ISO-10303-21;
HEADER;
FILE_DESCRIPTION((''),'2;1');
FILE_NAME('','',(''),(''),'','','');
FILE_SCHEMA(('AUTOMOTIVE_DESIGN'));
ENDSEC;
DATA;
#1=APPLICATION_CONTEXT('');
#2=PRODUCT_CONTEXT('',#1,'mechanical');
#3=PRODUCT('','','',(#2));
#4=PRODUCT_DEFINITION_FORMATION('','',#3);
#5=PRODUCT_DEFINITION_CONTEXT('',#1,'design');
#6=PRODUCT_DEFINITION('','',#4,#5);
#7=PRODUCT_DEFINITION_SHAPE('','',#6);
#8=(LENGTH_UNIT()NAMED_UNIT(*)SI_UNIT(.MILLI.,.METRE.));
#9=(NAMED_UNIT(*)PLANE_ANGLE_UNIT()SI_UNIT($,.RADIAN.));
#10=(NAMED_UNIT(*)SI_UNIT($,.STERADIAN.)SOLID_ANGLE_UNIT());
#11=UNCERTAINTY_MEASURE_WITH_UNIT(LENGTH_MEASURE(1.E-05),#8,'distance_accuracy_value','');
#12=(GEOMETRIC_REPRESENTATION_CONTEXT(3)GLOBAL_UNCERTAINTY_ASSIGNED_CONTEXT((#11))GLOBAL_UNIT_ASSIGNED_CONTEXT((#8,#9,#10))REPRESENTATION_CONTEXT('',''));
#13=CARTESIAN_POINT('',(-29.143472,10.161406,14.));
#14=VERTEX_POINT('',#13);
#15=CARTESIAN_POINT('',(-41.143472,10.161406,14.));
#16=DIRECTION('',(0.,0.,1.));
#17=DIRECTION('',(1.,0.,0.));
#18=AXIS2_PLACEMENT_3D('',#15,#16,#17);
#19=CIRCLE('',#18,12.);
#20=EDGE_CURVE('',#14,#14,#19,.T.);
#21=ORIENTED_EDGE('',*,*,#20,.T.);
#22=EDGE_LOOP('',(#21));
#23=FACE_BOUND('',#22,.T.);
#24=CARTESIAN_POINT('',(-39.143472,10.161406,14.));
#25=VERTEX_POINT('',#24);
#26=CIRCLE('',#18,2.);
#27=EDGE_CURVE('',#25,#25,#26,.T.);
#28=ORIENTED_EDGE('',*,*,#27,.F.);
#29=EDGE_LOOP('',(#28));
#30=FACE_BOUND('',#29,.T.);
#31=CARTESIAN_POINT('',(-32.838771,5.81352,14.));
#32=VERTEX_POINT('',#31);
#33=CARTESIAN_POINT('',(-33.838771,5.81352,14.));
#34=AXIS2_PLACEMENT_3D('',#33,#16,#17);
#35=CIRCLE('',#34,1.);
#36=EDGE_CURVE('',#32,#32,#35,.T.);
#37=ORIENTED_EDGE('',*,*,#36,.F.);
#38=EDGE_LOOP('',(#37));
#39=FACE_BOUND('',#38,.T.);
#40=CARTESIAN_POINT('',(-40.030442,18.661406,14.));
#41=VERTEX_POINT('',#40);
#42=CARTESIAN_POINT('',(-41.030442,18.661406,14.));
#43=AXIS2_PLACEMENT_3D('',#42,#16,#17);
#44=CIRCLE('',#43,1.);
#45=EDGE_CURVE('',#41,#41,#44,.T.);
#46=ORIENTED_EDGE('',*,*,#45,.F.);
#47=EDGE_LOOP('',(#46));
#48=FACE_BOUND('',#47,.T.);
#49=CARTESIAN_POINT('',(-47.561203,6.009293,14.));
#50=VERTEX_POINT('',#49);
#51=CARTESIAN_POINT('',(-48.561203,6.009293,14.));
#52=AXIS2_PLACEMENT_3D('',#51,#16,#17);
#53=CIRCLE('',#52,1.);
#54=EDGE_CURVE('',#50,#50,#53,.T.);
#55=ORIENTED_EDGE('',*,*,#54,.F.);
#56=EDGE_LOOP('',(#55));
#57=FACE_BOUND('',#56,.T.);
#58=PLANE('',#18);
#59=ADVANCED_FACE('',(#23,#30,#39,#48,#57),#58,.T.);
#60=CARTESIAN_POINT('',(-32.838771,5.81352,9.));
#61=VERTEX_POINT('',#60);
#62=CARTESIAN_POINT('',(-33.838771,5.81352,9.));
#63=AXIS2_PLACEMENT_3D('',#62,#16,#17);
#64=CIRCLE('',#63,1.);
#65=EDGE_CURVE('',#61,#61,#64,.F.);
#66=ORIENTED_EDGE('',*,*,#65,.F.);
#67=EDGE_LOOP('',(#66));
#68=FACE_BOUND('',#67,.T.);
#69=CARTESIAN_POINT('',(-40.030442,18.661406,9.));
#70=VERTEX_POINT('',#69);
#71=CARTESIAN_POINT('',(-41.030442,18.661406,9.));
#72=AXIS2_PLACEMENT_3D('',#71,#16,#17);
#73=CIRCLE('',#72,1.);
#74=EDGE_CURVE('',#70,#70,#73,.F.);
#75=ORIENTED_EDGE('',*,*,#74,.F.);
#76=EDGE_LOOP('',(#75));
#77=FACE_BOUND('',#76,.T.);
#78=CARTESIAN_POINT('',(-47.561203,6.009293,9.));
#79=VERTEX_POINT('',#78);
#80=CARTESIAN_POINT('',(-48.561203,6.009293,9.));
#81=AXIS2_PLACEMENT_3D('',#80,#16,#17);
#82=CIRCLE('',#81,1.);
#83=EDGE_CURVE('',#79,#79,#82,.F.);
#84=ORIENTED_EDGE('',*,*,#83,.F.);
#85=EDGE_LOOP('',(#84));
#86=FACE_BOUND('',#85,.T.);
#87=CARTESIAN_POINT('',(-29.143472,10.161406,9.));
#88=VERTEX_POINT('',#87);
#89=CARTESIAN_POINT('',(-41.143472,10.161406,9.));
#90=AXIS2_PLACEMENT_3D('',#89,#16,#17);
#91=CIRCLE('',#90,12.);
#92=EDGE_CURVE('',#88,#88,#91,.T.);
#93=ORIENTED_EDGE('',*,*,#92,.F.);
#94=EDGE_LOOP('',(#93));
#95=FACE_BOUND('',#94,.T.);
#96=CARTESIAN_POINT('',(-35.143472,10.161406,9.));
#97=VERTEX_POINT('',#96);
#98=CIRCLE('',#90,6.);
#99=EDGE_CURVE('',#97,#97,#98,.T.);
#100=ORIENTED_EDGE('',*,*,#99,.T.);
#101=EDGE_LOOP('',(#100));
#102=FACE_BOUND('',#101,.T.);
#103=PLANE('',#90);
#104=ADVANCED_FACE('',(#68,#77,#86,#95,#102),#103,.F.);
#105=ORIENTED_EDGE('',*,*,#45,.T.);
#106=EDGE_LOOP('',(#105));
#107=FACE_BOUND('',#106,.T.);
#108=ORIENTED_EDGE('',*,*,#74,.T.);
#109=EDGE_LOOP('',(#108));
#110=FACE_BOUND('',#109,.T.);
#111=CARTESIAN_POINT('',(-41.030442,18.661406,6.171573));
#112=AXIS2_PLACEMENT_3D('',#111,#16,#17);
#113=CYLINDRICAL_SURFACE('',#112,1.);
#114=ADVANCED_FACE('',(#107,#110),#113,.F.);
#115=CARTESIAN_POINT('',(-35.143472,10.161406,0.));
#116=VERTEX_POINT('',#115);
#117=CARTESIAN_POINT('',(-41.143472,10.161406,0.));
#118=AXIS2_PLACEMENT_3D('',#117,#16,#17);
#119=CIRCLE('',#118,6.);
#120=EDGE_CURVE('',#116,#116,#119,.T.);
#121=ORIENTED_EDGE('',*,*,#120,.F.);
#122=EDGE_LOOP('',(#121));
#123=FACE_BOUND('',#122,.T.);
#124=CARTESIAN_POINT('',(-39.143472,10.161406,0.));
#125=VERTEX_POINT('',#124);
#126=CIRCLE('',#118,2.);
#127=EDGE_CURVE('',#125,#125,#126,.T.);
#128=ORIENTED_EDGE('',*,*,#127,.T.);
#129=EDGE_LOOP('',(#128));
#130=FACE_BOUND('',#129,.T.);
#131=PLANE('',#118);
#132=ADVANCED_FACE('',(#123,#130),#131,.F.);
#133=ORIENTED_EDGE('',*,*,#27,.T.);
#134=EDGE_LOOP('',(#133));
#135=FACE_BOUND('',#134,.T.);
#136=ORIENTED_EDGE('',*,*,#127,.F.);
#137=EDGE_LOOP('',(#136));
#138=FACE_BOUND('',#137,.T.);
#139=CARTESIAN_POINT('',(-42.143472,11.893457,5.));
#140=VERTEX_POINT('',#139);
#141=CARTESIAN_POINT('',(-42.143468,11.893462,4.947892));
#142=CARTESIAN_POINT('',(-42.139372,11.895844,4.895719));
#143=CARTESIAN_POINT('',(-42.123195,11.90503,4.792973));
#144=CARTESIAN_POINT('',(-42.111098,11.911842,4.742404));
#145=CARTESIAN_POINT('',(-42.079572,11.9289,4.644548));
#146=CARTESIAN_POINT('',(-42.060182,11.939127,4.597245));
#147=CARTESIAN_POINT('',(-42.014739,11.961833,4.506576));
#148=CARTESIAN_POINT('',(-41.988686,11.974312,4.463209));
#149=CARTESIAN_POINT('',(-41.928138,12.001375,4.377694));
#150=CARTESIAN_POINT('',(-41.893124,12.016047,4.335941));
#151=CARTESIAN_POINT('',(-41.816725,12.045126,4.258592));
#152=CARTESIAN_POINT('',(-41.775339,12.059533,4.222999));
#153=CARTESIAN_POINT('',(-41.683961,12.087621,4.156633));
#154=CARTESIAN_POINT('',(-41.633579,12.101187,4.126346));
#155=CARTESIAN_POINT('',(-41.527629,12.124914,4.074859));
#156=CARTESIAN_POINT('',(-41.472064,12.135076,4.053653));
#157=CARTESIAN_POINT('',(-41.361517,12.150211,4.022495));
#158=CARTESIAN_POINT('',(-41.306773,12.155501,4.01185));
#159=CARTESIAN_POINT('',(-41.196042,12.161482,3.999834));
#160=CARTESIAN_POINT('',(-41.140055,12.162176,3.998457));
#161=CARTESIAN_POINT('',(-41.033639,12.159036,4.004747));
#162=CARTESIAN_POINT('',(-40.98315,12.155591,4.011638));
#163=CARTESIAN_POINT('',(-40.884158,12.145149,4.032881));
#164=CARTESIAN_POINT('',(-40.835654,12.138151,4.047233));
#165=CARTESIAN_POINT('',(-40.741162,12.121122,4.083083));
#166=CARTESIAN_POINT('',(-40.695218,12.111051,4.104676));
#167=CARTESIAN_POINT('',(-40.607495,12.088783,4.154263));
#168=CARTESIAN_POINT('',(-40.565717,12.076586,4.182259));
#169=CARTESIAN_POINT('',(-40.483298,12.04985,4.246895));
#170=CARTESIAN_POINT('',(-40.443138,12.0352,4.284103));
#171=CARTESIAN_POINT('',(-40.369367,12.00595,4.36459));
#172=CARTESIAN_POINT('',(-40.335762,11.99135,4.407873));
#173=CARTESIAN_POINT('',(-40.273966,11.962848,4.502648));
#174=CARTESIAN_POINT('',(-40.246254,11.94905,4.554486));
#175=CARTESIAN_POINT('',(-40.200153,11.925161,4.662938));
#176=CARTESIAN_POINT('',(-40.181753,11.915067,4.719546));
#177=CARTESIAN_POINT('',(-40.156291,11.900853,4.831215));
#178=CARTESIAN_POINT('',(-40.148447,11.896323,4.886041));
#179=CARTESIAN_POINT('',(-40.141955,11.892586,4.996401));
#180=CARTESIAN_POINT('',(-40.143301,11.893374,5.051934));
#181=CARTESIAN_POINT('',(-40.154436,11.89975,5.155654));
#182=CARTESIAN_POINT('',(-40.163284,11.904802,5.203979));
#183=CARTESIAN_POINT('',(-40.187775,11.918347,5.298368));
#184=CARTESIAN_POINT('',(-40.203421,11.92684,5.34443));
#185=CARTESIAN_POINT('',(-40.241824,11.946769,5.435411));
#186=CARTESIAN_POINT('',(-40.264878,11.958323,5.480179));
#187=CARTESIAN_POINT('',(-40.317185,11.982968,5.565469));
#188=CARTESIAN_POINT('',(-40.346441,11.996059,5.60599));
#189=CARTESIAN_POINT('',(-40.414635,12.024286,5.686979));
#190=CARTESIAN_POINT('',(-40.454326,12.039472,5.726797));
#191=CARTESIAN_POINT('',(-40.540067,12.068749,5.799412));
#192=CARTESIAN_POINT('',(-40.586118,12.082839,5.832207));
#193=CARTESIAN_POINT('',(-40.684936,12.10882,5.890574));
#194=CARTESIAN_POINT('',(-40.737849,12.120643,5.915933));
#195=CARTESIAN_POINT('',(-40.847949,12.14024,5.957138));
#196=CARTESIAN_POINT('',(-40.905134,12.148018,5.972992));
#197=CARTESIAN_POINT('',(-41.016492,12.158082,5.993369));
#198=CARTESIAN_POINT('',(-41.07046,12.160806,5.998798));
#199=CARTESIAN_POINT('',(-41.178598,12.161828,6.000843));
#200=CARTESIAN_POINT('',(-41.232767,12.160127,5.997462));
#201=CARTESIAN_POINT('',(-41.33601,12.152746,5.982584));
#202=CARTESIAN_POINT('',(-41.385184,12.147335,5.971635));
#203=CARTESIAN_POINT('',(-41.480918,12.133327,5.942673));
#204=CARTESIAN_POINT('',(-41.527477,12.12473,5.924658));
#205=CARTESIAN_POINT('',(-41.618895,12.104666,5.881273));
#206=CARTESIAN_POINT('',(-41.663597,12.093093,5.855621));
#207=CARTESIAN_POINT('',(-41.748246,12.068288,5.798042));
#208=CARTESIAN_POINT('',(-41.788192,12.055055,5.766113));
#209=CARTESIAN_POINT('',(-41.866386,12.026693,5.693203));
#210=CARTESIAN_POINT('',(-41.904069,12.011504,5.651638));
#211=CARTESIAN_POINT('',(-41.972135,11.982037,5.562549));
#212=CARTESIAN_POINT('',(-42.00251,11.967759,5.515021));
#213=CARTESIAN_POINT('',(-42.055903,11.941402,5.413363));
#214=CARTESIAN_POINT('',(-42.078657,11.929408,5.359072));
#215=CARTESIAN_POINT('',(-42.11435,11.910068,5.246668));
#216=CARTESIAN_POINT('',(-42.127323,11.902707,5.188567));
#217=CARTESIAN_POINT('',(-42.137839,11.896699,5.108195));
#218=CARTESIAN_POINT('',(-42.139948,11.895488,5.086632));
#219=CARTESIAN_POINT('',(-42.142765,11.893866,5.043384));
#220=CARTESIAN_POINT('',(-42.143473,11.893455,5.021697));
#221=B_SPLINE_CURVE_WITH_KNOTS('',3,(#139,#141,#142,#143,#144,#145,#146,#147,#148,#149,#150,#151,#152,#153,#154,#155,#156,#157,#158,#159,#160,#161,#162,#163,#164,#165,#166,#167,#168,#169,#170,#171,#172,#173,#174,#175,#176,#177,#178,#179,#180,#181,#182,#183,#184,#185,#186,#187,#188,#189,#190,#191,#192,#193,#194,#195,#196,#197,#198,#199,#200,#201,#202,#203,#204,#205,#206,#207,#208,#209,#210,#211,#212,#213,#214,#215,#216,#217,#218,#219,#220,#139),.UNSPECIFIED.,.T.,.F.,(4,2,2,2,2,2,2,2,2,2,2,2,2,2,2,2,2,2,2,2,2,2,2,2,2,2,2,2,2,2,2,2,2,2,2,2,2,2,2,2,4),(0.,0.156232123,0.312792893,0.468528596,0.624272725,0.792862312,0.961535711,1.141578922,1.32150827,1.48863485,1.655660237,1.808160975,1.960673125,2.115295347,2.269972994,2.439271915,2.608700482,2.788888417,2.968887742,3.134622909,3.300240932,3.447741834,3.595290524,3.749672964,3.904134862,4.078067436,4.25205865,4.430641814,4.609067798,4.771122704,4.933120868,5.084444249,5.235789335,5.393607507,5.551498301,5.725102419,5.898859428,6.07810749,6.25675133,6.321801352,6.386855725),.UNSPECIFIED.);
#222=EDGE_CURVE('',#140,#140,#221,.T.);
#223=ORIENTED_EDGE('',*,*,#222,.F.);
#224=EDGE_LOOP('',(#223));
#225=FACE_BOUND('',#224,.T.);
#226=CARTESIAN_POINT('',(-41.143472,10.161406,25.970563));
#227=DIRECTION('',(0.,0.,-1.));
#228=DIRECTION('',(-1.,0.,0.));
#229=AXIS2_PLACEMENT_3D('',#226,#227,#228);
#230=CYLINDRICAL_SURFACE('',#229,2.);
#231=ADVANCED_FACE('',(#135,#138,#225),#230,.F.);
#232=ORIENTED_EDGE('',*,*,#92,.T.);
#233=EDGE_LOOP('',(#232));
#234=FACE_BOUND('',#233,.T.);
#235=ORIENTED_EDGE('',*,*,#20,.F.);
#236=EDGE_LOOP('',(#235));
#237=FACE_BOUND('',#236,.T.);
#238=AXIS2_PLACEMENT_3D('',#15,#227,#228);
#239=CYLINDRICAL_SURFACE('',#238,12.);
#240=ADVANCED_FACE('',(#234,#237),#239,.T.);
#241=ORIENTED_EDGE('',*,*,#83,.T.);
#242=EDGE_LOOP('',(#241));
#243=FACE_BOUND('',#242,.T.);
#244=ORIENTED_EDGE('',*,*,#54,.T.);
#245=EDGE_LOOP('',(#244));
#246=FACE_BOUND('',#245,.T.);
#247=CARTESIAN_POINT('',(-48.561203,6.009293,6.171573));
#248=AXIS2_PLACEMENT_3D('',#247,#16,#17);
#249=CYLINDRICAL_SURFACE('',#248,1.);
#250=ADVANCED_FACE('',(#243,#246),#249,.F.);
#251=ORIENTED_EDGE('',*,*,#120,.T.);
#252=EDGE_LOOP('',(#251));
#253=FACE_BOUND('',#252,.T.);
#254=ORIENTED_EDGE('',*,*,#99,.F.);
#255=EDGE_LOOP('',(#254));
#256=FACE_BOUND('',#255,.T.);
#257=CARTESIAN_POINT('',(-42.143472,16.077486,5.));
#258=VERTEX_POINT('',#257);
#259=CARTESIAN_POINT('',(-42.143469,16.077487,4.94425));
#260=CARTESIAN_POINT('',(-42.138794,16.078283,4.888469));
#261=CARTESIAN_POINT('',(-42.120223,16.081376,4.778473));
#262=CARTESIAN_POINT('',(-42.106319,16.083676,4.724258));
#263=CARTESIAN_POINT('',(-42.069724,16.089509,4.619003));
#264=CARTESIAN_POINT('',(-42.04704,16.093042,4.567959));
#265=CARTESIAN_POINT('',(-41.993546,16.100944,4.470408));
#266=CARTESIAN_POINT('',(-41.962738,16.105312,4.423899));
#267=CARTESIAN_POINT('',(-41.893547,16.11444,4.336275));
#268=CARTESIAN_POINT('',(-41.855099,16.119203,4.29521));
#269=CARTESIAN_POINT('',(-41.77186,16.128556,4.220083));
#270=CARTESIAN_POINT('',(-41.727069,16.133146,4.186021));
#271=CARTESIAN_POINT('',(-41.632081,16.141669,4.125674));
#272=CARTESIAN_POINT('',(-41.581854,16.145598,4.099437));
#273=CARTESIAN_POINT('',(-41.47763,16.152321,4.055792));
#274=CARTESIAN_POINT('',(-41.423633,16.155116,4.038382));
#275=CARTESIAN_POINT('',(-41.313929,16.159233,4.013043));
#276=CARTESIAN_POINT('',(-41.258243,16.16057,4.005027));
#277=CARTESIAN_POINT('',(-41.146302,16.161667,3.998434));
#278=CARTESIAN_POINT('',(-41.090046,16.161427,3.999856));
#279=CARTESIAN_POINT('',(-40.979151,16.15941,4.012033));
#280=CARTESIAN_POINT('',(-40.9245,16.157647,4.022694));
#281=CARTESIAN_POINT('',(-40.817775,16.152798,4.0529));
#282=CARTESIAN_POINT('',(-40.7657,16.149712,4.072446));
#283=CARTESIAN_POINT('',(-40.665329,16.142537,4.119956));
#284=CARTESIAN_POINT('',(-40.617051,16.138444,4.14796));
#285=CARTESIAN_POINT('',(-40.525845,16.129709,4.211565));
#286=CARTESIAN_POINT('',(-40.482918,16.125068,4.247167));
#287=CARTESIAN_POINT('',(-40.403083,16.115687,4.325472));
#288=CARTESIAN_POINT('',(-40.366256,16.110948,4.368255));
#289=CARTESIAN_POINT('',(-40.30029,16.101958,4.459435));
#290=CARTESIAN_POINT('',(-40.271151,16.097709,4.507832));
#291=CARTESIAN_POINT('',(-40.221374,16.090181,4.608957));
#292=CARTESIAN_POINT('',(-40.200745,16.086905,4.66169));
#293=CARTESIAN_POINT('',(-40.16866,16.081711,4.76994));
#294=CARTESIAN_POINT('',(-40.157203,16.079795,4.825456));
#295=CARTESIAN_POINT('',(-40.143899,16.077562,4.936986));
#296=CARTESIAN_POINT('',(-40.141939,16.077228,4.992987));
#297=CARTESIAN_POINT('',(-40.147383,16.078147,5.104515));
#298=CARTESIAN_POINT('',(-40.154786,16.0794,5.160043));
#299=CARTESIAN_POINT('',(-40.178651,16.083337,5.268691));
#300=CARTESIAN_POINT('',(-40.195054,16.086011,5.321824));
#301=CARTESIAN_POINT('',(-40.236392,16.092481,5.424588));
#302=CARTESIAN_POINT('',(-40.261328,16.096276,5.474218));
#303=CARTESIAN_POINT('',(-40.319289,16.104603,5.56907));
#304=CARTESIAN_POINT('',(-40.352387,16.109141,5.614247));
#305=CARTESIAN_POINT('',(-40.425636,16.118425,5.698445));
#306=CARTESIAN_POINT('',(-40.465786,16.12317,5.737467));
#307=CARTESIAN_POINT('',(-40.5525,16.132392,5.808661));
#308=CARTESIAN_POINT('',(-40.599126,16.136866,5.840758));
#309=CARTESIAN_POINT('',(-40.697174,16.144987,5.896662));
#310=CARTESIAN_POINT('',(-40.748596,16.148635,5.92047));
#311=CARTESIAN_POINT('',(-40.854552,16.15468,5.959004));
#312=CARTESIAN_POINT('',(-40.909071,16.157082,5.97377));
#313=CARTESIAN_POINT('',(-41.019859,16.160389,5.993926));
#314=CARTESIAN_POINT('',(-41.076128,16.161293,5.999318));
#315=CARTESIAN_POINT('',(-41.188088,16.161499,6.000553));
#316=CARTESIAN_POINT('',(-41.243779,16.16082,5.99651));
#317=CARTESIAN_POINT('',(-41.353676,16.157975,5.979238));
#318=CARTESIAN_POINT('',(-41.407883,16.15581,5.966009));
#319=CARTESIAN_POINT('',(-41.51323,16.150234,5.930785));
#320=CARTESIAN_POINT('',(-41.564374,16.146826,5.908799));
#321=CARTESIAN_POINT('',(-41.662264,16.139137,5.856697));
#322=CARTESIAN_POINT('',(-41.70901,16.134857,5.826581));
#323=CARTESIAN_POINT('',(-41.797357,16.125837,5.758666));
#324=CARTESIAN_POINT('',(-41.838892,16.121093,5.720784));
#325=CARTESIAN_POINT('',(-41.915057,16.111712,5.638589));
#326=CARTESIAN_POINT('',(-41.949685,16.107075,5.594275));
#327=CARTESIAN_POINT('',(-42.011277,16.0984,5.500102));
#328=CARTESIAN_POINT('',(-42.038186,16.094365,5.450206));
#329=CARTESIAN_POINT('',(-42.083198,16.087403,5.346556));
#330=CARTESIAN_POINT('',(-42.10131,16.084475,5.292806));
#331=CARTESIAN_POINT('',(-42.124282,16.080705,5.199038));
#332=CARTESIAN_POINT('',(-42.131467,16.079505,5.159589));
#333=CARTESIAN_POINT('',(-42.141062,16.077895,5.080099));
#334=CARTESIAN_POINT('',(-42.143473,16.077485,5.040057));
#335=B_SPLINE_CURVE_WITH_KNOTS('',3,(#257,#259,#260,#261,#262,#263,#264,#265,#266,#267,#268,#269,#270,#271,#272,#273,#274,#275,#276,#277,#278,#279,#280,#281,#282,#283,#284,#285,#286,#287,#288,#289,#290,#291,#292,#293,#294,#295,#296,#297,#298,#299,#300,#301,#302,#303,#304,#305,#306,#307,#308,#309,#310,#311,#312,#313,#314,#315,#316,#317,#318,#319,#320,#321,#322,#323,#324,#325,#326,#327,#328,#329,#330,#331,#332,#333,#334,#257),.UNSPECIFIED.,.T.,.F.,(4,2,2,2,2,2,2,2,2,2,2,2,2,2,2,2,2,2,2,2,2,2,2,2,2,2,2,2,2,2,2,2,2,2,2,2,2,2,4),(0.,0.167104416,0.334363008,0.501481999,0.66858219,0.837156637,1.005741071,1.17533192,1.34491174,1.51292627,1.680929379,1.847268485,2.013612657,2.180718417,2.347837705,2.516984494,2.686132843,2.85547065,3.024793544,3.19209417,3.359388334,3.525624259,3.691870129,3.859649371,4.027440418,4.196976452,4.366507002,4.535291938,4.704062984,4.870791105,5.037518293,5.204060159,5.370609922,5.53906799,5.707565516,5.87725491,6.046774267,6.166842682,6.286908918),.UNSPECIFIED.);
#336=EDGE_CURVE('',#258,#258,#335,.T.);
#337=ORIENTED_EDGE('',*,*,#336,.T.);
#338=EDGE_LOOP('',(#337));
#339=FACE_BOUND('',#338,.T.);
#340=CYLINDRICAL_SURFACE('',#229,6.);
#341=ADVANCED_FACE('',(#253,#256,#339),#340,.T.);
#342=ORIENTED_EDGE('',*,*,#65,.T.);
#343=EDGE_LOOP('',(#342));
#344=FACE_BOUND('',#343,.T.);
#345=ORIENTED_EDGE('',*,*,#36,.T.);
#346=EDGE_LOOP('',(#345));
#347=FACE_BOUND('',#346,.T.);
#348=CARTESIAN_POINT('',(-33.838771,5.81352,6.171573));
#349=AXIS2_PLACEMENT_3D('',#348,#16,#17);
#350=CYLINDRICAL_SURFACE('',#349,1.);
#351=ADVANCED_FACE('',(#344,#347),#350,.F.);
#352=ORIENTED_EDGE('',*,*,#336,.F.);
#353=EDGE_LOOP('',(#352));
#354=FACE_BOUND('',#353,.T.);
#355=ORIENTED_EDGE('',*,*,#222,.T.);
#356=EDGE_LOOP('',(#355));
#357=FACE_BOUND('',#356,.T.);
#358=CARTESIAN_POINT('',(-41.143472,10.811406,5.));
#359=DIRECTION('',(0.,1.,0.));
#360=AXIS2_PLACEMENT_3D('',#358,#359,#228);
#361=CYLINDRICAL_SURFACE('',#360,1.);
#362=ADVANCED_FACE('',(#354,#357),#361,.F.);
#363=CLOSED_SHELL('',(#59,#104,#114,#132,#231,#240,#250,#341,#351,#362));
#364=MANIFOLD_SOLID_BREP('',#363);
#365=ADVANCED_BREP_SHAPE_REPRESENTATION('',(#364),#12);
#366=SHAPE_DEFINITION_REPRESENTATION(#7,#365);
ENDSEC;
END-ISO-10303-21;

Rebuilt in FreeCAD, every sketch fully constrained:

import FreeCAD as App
import Part
import Sketcher
from FreeCAD import Vector
Q = App.Units.Quantity

doc = App.newDocument("Part")
body = doc.addObject("PartDesign::Body", "Body")

sketch1 = body.newObject("Sketcher::SketchObject", "Sketch")
sketch1.AttachmentSupport = (doc.getObject("XY_Plane"), [""])
sketch1.MapMode = "FlatFace"
sketch1.addGeometry([
    Part.Circle(Vector(-41.1, 10.2, 0), Vector(0, 0, 1), 6),
    Part.Circle(Vector(-41.1, 10.2, 0), Vector(0, 0, 1), 2),
], False)
sketch1.addConstraint([
    Sketcher.Constraint("Coincident", 1, 3, 0, 3),
    Sketcher.Constraint("Diameter", 0, Q("12 mm")),
    Sketcher.Constraint("Diameter", 1, Q("4 mm")),
    Sketcher.Constraint("DistanceX", 0, 3, -1, 1, Q("41.143472 mm")),
    Sketcher.Constraint("DistanceY", -1, 1, 0, 3, Q("10.161406 mm")),
])
pad1 = body.newObject("PartDesign::Pad", "Pad")
pad1.Profile = sketch1
pad1.Length = 9

sketch2 = body.newObject("Sketcher::SketchObject", "Sketch001")
sketch2.AttachmentSupport = (doc.getObject("XY_Plane"), [""])
sketch2.MapMode = "FlatFace"
sketch2.AttachmentOffset = App.Placement(Vector(0, 0, 9), App.Rotation())
sketch2.addGeometry([
    Part.Circle(Vector(-41.1, 10.2, 0), Vector(0, 0, 1), 12),
    Part.Circle(Vector(-41.1, 10.2, 0), Vector(0, 0, 1), 2),
], False)
sketch2.addConstraint([
    Sketcher.Constraint("Coincident", 1, 3, 0, 3),
    Sketcher.Constraint("Diameter", 0, Q("24 mm")),
    Sketcher.Constraint("Diameter", 1, Q("4 mm")),
    Sketcher.Constraint("DistanceX", 0, 3, -1, 1, Q("41.143472 mm")),
    Sketcher.Constraint("DistanceY", -1, 1, 0, 3, Q("10.161406 mm")),
])
pad2 = body.newObject("PartDesign::Pad", "Pad001")
pad2.Profile = sketch2
pad2.Length = 5

sketch3 = body.newObject("Sketcher::SketchObject", "Sketch002")
sketch3.AttachmentSupport = (doc.getObject("XZ_Plane"), [""])
sketch3.MapMode = "FlatFace"
sketch3.AttachmentOffset = App.Placement(Vector(0, 0, -17.811406), App.Rotation())
sketch3.addGeometry(Part.Circle(Vector(-41.1, 5, 0), Vector(0, 0, 1), 1), False)
sketch3.addConstraint([
    Sketcher.Constraint("Diameter", 0, Q("2 mm")),
    Sketcher.Constraint("DistanceY", -1, 1, 0, 3, Q("5 mm")),
    Sketcher.Constraint("DistanceX", 0, 3, -1, 1, Q("41.143472 mm")),
])
pocket1 = body.newObject("PartDesign::Pocket", "Pocket")
pocket1.Profile = sketch3
pocket1.Length = 7
pocket1.Reversed = True

sketch4 = body.newObject("Sketcher::SketchObject", "Sketch003")
sketch4.AttachmentSupport = (doc.getObject("XY_Plane"), [""])
sketch4.MapMode = "FlatFace"
sketch4.AttachmentOffset = App.Placement(Vector(0, 0, 14), App.Rotation())
sketch4.addGeometry([
    Part.Circle(Vector(-41, 18.7, 0), Vector(0, 0, 1), 1),
    Part.Circle(Vector(-33.8, 5.8, 0), Vector(0, 0, 1), 1),
    Part.Circle(Vector(-48.6, 6, 0), Vector(0, 0, 1), 1),
], False)
sketch4.addConstraint([
    Sketcher.Constraint("Equal", 0, 1),
    Sketcher.Constraint("Equal", 1, 2),
    Sketcher.Constraint("Diameter", 0, Q("2 mm")),
    Sketcher.Constraint("DistanceX", 0, 3, -1, 1, Q("41.030442 mm")),
    Sketcher.Constraint("DistanceX", 1, 3, -1, 1, Q("33.838771 mm")),
    Sketcher.Constraint("DistanceY", -1, 1, 1, 3, Q("5.81352 mm")),
    Sketcher.Constraint("DistanceX", 2, 3, 0, 3, Q("7.530761 mm")),
    Sketcher.Constraint("DistanceY", -1, 1, 0, 3, Q("18.661406 mm")),
    Sketcher.Constraint("DistanceY", -1, 1, 2, 3, Q("6.009293 mm")),
])
pocket2 = body.newObject("PartDesign::Pocket", "Pocket001")
pocket2.Profile = sketch4
pocket2.Length = 5

doc.recompute()
